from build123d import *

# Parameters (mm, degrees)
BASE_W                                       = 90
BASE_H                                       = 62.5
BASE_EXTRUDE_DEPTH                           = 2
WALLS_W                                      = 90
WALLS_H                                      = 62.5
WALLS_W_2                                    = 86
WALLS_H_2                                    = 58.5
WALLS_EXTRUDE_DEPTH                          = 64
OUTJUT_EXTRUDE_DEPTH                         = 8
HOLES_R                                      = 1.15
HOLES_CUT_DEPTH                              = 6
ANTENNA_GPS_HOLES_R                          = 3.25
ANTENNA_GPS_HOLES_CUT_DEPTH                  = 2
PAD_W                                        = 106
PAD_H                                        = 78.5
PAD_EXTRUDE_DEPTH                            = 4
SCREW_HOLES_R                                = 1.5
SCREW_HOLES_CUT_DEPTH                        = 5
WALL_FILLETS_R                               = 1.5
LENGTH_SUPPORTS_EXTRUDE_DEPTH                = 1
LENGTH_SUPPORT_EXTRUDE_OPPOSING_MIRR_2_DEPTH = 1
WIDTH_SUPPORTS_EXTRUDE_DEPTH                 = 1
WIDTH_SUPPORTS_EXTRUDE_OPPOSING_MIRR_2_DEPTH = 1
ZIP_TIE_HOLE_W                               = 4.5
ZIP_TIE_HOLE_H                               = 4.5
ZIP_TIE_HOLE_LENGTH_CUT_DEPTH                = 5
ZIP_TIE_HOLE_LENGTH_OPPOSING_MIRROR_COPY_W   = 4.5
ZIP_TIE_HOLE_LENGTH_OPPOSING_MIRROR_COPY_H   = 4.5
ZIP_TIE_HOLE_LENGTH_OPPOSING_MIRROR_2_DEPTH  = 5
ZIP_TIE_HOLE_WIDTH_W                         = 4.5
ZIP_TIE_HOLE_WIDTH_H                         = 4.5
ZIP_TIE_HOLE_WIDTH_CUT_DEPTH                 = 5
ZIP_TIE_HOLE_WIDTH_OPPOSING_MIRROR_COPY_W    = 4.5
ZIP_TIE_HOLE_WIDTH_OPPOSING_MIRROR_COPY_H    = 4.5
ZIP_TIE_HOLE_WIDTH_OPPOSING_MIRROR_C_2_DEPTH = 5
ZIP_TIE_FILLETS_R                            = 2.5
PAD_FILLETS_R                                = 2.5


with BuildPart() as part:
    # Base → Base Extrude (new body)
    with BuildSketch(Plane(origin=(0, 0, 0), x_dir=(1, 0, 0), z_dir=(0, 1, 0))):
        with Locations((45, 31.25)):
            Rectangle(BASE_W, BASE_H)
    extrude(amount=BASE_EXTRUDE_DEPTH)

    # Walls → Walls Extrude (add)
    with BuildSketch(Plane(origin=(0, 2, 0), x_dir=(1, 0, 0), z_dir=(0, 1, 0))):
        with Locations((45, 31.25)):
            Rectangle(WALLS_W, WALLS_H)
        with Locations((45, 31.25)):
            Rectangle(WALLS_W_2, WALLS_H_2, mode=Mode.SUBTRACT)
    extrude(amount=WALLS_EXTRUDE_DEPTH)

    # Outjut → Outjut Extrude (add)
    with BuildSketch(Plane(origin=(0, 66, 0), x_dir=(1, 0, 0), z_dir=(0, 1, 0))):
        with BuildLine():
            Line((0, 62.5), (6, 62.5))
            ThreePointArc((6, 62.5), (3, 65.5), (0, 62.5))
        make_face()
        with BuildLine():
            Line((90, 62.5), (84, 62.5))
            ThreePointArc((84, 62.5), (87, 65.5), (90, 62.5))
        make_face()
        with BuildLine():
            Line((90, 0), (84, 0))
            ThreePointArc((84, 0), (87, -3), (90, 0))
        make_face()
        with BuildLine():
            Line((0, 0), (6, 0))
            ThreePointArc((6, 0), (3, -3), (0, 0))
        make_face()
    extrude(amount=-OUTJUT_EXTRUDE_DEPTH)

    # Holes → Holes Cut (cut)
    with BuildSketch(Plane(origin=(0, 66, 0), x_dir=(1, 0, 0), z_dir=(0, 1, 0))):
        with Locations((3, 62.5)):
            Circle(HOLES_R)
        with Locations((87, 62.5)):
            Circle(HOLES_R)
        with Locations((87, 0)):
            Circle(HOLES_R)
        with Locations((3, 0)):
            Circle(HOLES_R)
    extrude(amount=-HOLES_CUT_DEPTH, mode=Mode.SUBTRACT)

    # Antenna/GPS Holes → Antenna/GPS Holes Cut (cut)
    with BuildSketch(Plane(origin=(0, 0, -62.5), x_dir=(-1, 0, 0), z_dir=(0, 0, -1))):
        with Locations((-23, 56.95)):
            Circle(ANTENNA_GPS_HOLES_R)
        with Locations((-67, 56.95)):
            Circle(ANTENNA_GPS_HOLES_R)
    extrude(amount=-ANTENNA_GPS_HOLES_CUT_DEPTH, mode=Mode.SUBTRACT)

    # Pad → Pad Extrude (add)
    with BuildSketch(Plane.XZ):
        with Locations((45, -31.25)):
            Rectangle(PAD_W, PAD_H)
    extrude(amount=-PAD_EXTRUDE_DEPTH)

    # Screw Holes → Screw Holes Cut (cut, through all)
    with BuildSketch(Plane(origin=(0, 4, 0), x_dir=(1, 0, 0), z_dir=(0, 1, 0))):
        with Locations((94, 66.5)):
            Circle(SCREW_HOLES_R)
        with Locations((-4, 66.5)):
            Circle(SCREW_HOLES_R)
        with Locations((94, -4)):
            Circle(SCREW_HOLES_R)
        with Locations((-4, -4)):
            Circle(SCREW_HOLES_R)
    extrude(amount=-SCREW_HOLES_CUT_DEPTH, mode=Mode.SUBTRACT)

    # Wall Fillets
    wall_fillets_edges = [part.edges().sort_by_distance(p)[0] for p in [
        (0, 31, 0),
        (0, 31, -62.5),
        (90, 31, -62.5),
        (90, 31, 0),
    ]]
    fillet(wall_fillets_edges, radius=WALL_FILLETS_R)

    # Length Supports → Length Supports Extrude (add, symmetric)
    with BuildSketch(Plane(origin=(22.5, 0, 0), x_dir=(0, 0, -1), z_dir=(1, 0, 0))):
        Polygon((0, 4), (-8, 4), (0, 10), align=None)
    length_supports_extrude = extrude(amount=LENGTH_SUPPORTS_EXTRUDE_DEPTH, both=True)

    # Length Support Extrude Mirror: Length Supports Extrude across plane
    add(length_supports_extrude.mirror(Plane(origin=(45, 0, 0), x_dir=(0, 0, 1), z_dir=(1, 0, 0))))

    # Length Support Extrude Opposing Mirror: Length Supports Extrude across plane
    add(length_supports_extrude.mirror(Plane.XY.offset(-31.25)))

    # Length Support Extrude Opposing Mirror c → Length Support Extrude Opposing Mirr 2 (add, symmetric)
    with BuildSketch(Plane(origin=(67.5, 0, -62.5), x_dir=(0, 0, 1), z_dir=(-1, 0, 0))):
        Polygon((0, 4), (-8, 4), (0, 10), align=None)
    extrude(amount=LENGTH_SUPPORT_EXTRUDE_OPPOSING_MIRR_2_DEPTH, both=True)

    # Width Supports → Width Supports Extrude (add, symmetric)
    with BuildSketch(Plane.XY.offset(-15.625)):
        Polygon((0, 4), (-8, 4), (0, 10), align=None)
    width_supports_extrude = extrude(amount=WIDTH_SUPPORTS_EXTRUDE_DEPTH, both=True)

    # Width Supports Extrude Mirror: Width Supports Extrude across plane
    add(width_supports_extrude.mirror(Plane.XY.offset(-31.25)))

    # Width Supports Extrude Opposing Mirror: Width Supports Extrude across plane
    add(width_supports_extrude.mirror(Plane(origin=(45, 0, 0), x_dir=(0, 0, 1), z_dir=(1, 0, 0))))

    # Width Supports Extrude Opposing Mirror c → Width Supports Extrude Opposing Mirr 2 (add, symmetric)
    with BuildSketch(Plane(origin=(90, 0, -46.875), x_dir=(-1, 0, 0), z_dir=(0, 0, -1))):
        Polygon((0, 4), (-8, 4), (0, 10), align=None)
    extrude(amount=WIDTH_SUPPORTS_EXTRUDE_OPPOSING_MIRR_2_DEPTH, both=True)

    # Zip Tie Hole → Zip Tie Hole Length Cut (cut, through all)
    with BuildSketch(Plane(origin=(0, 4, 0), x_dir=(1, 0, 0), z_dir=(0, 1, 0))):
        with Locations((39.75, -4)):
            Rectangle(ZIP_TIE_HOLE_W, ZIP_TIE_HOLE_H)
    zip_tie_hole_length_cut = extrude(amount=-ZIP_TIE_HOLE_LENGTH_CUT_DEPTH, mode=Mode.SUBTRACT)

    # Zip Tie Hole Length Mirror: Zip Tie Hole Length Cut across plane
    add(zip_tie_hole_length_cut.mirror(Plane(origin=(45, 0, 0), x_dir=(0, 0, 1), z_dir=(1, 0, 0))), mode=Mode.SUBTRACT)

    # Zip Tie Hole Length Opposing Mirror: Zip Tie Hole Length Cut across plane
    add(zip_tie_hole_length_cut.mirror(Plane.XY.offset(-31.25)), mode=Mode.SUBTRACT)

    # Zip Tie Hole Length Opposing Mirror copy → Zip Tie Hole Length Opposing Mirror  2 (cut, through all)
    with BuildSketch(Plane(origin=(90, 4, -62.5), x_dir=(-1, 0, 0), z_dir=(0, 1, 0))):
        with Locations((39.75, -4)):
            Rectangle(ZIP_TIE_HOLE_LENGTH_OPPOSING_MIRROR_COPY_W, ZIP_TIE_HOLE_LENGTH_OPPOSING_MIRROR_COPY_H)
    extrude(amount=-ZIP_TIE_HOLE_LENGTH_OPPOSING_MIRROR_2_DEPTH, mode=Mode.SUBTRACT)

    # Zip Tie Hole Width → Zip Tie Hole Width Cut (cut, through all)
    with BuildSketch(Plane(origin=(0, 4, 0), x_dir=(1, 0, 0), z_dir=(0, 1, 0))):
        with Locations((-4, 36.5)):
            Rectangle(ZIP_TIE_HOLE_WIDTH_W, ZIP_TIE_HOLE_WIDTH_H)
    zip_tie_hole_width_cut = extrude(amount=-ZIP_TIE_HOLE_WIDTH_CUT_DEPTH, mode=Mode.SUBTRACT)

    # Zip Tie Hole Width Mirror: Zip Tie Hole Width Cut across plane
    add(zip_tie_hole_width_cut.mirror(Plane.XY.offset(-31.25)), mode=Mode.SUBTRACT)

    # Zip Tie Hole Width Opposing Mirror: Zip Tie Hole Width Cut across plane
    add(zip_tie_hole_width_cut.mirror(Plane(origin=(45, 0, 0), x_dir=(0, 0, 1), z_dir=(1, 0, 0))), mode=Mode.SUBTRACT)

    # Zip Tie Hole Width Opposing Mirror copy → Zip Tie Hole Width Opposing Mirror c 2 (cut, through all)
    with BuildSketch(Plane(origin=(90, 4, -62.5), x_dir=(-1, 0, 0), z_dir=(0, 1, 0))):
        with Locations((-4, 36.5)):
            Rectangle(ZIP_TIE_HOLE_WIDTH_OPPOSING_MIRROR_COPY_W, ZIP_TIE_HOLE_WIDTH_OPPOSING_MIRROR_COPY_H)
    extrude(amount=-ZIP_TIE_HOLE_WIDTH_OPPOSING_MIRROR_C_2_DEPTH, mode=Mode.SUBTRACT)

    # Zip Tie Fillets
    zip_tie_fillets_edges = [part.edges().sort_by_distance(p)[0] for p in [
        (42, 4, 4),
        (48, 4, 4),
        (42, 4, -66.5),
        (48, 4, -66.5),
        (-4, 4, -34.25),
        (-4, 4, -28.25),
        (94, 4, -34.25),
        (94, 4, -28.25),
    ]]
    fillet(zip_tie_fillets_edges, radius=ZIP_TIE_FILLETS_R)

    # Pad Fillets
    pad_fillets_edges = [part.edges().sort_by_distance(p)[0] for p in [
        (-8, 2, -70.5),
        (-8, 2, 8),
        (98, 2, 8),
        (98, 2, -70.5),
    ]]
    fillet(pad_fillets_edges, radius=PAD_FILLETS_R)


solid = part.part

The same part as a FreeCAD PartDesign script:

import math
import FreeCAD as App
import Part
import Sketcher
from FreeCAD import Vector


def edges_at(feature, points):
    """Names of the edges that pass closest to the given points."""
    edges = feature.Shape.Edges
    near = lambda p: min(range(len(edges)), key=lambda i: edges[i].distToShape(Part.Vertex(*p))[0])
    return sorted({f"Edge{near(p) + 1}" for p in points})

doc = App.newDocument("Part")
params = doc.addObject("Spreadsheet::Sheet", "Params")
for row, (alias, value) in enumerate([
    ("sketch1_width", "90 mm"),
    ("sketch1_height", "62.5 mm"),
    ("pad1_length", "2 mm"),
    ("sketch2_width", "90 mm"),
    ("sketch2_width2", "86 mm"),
    ("sketch2_height", "62.5 mm"),
    ("sketch2_height2", "58.5 mm"),
    ("pad2_length", "64 mm"),
    ("sketch3_radius", "3 mm"),
    ("pad3_length", "8 mm"),
    ("sketch4_diameter", "2.3 mm"),
    ("pocket1_length", "6 mm"),
    ("sketch5_diameter", "6.5 mm"),
    ("pocket2_length", "2 mm"),
    ("sketch6_width", "106 mm"),
    ("sketch6_height", "78.5 mm"),
    ("pad4_length", "4 mm"),
    ("sketch7_diameter", "3 mm"),
    ("fillet_radius", "1.5 mm"),
    ("sketch8_width", "6 mm"),
    ("sketch8_height", "8 mm"),
    ("pad5_length", "2 mm"),
    ("sketch9_width", "6 mm"),
    ("sketch9_height", "8 mm"),
    ("pad6_length", "2 mm"),
    ("sketch10_width", "8 mm"),
    ("sketch10_height", "6 mm"),
    ("pad7_length", "2 mm"),
    ("sketch11_width", "8 mm"),
    ("sketch11_height", "6 mm"),
    ("pad8_length", "2 mm"),
    ("sketch12_width", "4.5 mm"),
    ("sketch13_width", "4.5 mm"),
    ("sketch14_width", "4.5 mm"),
    ("sketch15_width", "4.5 mm"),
    ("fillet2_radius", "2.5 mm"),
    ("fillet3_radius", "2.5 mm"),
], start=1):
    params.set(f"A{row}", alias)
    params.set(f"B{row}", "=" + value)
    params.setAlias(f"B{row}", alias)

body = doc.addObject("PartDesign::Body", "Body")

sketch1 = body.newObject("Sketcher::SketchObject", "Sketch")
sketch1.AttachmentSupport = (doc.getObject("XZ_Plane"), [""])
sketch1.MapMode = "FlatFace"
sketch1.addGeometry([
    Part.LineSegment(Vector(0, -62.5, 0), Vector(0, 0, 0)),
    Part.LineSegment(Vector(0, 0, 0), Vector(90, 0, 0)),
    Part.LineSegment(Vector(90, 0, 0), Vector(90, -62.5, 0)),
    Part.LineSegment(Vector(90, -62.5, 0), Vector(0, -62.5, 0)),
], False)
sketch1.addConstraint([
    Sketcher.Constraint("Coincident", 0, 2, 1, 1),
    Sketcher.Constraint("Coincident", 1, 2, 2, 1),
    Sketcher.Constraint("Coincident", 2, 2, 3, 1),
    Sketcher.Constraint("Coincident", 3, 2, 0, 1),
    Sketcher.Constraint("Vertical", 0),
    Sketcher.Constraint("Horizontal", 1),
    Sketcher.Constraint("Vertical", 2),
    Sketcher.Constraint("Horizontal", 3),
    Sketcher.Constraint("Coincident", 0, 2, -1, 1),
    Sketcher.Constraint("DistanceX", 1, 1, 1, 2, 90.0),
    Sketcher.Constraint("DistanceY", 0, 1, 0, 2, 62.5),
])
sketch1.setExpression("Constraints[9]", "Params.sketch1_width")
sketch1.setExpression("Constraints[10]", "Params.sketch1_height")
pad1 = body.newObject("PartDesign::Pad", "Pad")
pad1.Profile = sketch1
pad1.setExpression("Length", "Params.pad1_length")
pad1.Reversed = True

sketch2 = body.newObject("Sketcher::SketchObject", "Sketch001")
sketch2.AttachmentSupport = (doc.getObject("XZ_Plane"), [""])
sketch2.MapMode = "FlatFace"
sketch2.AttachmentOffset = App.Placement(Vector(0, 0, -2), App.Rotation())
sketch2.addGeometry([
    Part.LineSegment(Vector(0, -62.5, 0), Vector(0, 0, 0)),
    Part.LineSegment(Vector(0, 0, 0), Vector(90, 0, 0)),
    Part.LineSegment(Vector(90, 0, 0), Vector(90, -62.5, 0)),
    Part.LineSegment(Vector(90, -62.5, 0), Vector(0, -62.5, 0)),
    Part.LineSegment(Vector(88, -2, 0), Vector(2, -2, 0)),
    Part.LineSegment(Vector(2, -2, 0), Vector(2, -60.5, 0)),
    Part.LineSegment(Vector(2, -60.5, 0), Vector(88, -60.5, 0)),
    Part.LineSegment(Vector(88, -60.5, 0), Vector(88, -2, 0)),
], False)
sketch2.addConstraint([
    Sketcher.Constraint("Coincident", 0, 2, 1, 1),
    Sketcher.Constraint("Coincident", 1, 2, 2, 1),
    Sketcher.Constraint("Coincident", 2, 2, 3, 1),
    Sketcher.Constraint("Coincident", 3, 2, 0, 1),
    Sketcher.Constraint("Coincident", 4, 2, 5, 1),
    Sketcher.Constraint("Coincident", 5, 2, 6, 1),
    Sketcher.Constraint("Coincident", 6, 2, 7, 1),
    Sketcher.Constraint("Coincident", 7, 2, 4, 1),
    Sketcher.Constraint("Vertical", 0),
    Sketcher.Constraint("Horizontal", 1),
    Sketcher.Constraint("Vertical", 2),
    Sketcher.Constraint("Horizontal", 3),
    Sketcher.Constraint("Horizontal", 4),
    Sketcher.Constraint("Vertical", 5),
    Sketcher.Constraint("Horizontal", 6),
    Sketcher.Constraint("Vertical", 7),
    Sketcher.Constraint("Coincident", 0, 2, -1, 1),
    Sketcher.Constraint("DistanceX", 1, 1, 1, 2, 90.0),
    Sketcher.Constraint("DistanceX", 4, 2, 4, 1, 86.0),
    Sketcher.Constraint("DistanceY", 0, 1, 0, 2, 62.5),
    Sketcher.Constraint("DistanceY", 5, 2, 5, 1, 58.5),
    Sketcher.Constraint("DistanceX", -1, 1, 4, 2, 2.0),
    Sketcher.Constraint("DistanceY", 4, 2, -1, 1, 2.0),
])
sketch2.setExpression("Constraints[17]", "Params.sketch2_width")
sketch2.setExpression("Constraints[18]", "Params.sketch2_width2")
sketch2.setExpression("Constraints[19]", "Params.sketch2_height")
sketch2.setExpression("Constraints[20]", "Params.sketch2_height2")
pad2 = body.newObject("PartDesign::Pad", "Pad001")
pad2.Profile = sketch2
pad2.setExpression("Length", "Params.pad2_length")
pad2.Reversed = True

sketch3 = body.newObject("Sketcher::SketchObject", "Sketch002")
sketch3.AttachmentSupport = (doc.getObject("XZ_Plane"), [""])
sketch3.MapMode = "FlatFace"
sketch3.AttachmentOffset = App.Placement(Vector(0, 0, -66), App.Rotation())
sketch3.addGeometry([
    Part.LineSegment(Vector(0, -62.5, 0), Vector(6, -62.5, 0)),
    Part.ArcOfCircle(Part.Circle(Vector(3, -62.5, 0), Vector(0, 0, 1), 3), math.radians(180), math.radians(360)),
    Part.LineSegment(Vector(84, -62.5, 0), Vector(90, -62.5, 0)),
    Part.ArcOfCircle(Part.Circle(Vector(87, -62.5, 0), Vector(0, 0, 1), 3), math.radians(180), math.radians(360)),
    Part.LineSegment(Vector(90, 0, 0), Vector(84, 0, 0)),
    Part.ArcOfCircle(Part.Circle(Vector(87, 0, 0), Vector(0, 0, 1), 3), math.radians(0), math.radians(180)),
    Part.LineSegment(Vector(6, 0, 0), Vector(0, 0, 0)),
    Part.ArcOfCircle(Part.Circle(Vector(3, 0, 0), Vector(0, 0, 1), 3), math.radians(0), math.radians(180)),
], False)
sketch3.addConstraint([
    Sketcher.Constraint("Coincident", 0, 1, 1, 1),
    Sketcher.Constraint("Coincident", 1, 2, 0, 2),
    Sketcher.Constraint("Coincident", 2, 1, 3, 1),
    Sketcher.Constraint("Coincident", 3, 2, 2, 2),
    Sketcher.Constraint("Coincident", 4, 1, 5, 1),
    Sketcher.Constraint("Coincident", 5, 2, 4, 2),
    Sketcher.Constraint("Coincident", 6, 1, 7, 1),
    Sketcher.Constraint("Coincident", 7, 2, 6, 2),
    Sketcher.Constraint("Horizontal", 0),
    Sketcher.Constraint("Horizontal", 2),
    Sketcher.Constraint("Horizontal", 4),
    Sketcher.Constraint("Horizontal", 6),
    Sketcher.Constraint("Coincident", 7, 2, -1, 1),
    Sketcher.Constraint("Equal", 1, 3),
    Sketcher.Constraint("Equal", 3, 5),
    Sketcher.Constraint("Equal", 5, 7),
    Sketcher.Constraint("PointOnObject", 5, 3, -1),
    Sketcher.Constraint("PointOnObject", 7, 3, -1),
    Sketcher.Constraint("PointOnObject", 0, 1, -2),
    Sketcher.Constraint("PointOnObject", 4, 1, -1),
    Sketcher.Constraint("Horizontal", 1, 3, 3, 3),
    Sketcher.Constraint("Horizontal", 3, 3, 0, 1),
    Sketcher.Constraint("Horizontal", 1, 2, 2, 1),
    Sketcher.Constraint("Vertical", 3, 3, 5, 3),
    Sketcher.Constraint("Radius", 1, 3.0),
    Sketcher.Constraint("DistanceX", -1, 1, 3, 3, 87.0),
    Sketcher.Constraint("DistanceY", 1, 3, -1, 1, 62.5),
])
sketch3.setExpression("Constraints[24]", "Params.sketch3_radius")
pad3 = body.newObject("PartDesign::Pad", "Pad002")
pad3.Profile = sketch3
pad3.setExpression("Length", "Params.pad3_length")

sketch4 = body.newObject("Sketcher::SketchObject", "Sketch003")
sketch4.AttachmentSupport = (doc.getObject("XZ_Plane"), [""])
sketch4.MapMode = "FlatFace"
sketch4.AttachmentOffset = App.Placement(Vector(0, 0, -66), App.Rotation())
sketch4.addGeometry([
    Part.Circle(Vector(3, -62.5, 0), Vector(0, 0, 1), 1.15),
    Part.Circle(Vector(87, -62.5, 0), Vector(0, 0, 1), 1.15),
    Part.Circle(Vector(87, 0, 0), Vector(0, 0, 1), 1.15),
    Part.Circle(Vector(3, 0, 0), Vector(0, 0, 1), 1.15),
], False)
sketch4.addConstraint([
    Sketcher.Constraint("Equal", 0, 1),
    Sketcher.Constraint("Equal", 1, 2),
    Sketcher.Constraint("Equal", 2, 3),
    Sketcher.Constraint("PointOnObject", 2, 3, -1),
    Sketcher.Constraint("PointOnObject", 3, 3, -1),
    Sketcher.Constraint("Horizontal", 0, 3, 1, 3),
    Sketcher.Constraint("Vertical", 1, 3, 2, 3),
    Sketcher.Constraint("Vertical", 0, 3, 3, 3),
    Sketcher.Constraint("Diameter", 0, 2.3),
    Sketcher.Constraint("DistanceX", -1, 1, 0, 3, 3.0),
    Sketcher.Constraint("DistanceX", -1, 1, 1, 3, 87.0),
    Sketcher.Constraint("DistanceY", 0, 3, -1, 1, 62.5),
])
sketch4.setExpression("Constraints[8]", "Params.sketch4_diameter")
pocket1 = body.newObject("PartDesign::Pocket", "Pocket")
pocket1.Profile = sketch4
pocket1.setExpression("Length", "Params.pocket1_length")
pocket1.Reversed = True

sketch5 = body.newObject("Sketcher::SketchObject", "Sketch004")
sketch5.AttachmentSupport = (doc.getObject("XY_Plane"), [""])
sketch5.MapMode = "FlatFace"
sketch5.AttachmentOffset = App.Placement(Vector(0, 0, -62.5), App.Rotation())
sketch5.addGeometry([
    Part.Circle(Vector(23, 56.95, 0), Vector(0, 0, 1), 3.25),
    Part.Circle(Vector(67, 56.95, 0), Vector(0, 0, 1), 3.25),
], False)
sketch5.addConstraint([
    Sketcher.Constraint("Equal", 0, 1),
    Sketcher.Constraint("Horizontal", 0, 3, 1, 3),
    Sketcher.Constraint("Diameter", 0, 6.5),
    Sketcher.Constraint("DistanceX", -1, 1, 0, 3, 23.0),
    Sketcher.Constraint("DistanceX", -1, 1, 1, 3, 67.0),
    Sketcher.Constraint("DistanceY", -1, 1, 0, 3, 56.95),
])
sketch5.setExpression("Constraints[2]", "Params.sketch5_diameter")
pocket2 = body.newObject("PartDesign::Pocket", "Pocket001")
pocket2.Profile = sketch5
pocket2.setExpression("Length", "Params.pocket2_length")
pocket2.Reversed = True

sketch6 = body.newObject("Sketcher::SketchObject", "Sketch005")
sketch6.AttachmentSupport = (doc.getObject("XZ_Plane"), [""])
sketch6.MapMode = "FlatFace"
sketch6.addGeometry([
    Part.LineSegment(Vector(-8, 8, 0), Vector(-8, -70.5, 0)),
    Part.LineSegment(Vector(-8, -70.5, 0), Vector(98, -70.5, 0)),
    Part.LineSegment(Vector(98, -70.5, 0), Vector(98, 8, 0)),
    Part.LineSegment(Vector(98, 8, 0), Vector(-8, 8, 0)),
], False)
sketch6.addConstraint([
    Sketcher.Constraint("Coincident", 0, 2, 1, 1),
    Sketcher.Constraint("Coincident", 1, 2, 2, 1),
    Sketcher.Constraint("Coincident", 2, 2, 3, 1),
    Sketcher.Constraint("Coincident", 3, 2, 0, 1),
    Sketcher.Constraint("Vertical", 0),
    Sketcher.Constraint("Horizontal", 1),
    Sketcher.Constraint("Vertical", 2),
    Sketcher.Constraint("Horizontal", 3),
    Sketcher.Constraint("DistanceX", 1, 1, 1, 2, 106.0),
    Sketcher.Constraint("DistanceY", 0, 2, 0, 1, 78.5),
    Sketcher.Constraint("DistanceX", 0, 2, -1, 1, 8.0),
    Sketcher.Constraint("DistanceY", -1, 1, 2, 2, 8.0),
])
sketch6.setExpression("Constraints[8]", "Params.sketch6_width")
sketch6.setExpression("Constraints[9]", "Params.sketch6_height")
pad4 = body.newObject("PartDesign::Pad", "Pad003")
pad4.Profile = sketch6
pad4.setExpression("Length", "Params.pad4_length")
pad4.Reversed = True

sketch7 = body.newObject("Sketcher::SketchObject", "Sketch006")
sketch7.AttachmentSupport = (doc.getObject("XZ_Plane"), [""])
sketch7.MapMode = "FlatFace"
sketch7.AttachmentOffset = App.Placement(Vector(0, 0, -4), App.Rotation())
sketch7.addGeometry([
    Part.Circle(Vector(94, -66.5, 0), Vector(0, 0, 1), 1.5),
    Part.Circle(Vector(-4, -66.5, 0), Vector(0, 0, 1), 1.5),
    Part.Circle(Vector(94, 4, 0), Vector(0, 0, 1), 1.5),
    Part.Circle(Vector(-4, 4, 0), Vector(0, 0, 1), 1.5),
], False)
sketch7.addConstraint([
    Sketcher.Constraint("Equal", 0, 1),
    Sketcher.Constraint("Equal", 1, 2),
    Sketcher.Constraint("Equal", 2, 3),
    Sketcher.Constraint("Horizontal", 0, 3, 1, 3),
    Sketcher.Constraint("Horizontal", 2, 3, 3, 3),
    Sketcher.Constraint("Vertical", 0, 3, 2, 3),
    Sketcher.Constraint("Vertical", 1, 3, 3, 3),
    Sketcher.Constraint("Diameter", 0, 3.0),
    Sketcher.Constraint("DistanceX", -1, 1, 0, 3, 94.0),
    Sketcher.Constraint("DistanceX", 1, 3, -1, 1, 4.0),
    Sketcher.Constraint("DistanceY", -1, 1, 2, 3, 4.0),
    Sketcher.Constraint("DistanceY", 0, 3, -1, 1, 66.5),
])
sketch7.setExpression("Constraints[7]", "Params.sketch7_diameter")
pocket3 = body.newObject("PartDesign::Pocket", "Pocket002")
pocket3.Profile = sketch7
pocket3.Type = "ThroughAll"
pocket3.Reversed = True
doc.recompute()

fillet = body.newObject("PartDesign::Fillet", "Fillet")
fillet.Base = (pocket3, edges_at(pocket3, [
    (0, 31, 0),
    (0, 31, -62.5),
    (90, 31, -62.5),
    (90, 31, 0),
]))
fillet.setExpression("Radius", "Params.fillet_radius")

sketch8 = body.newObject("Sketcher::SketchObject", "Sketch007")
sketch8.AttachmentSupport = (doc.getObject("YZ_Plane"), [""])
sketch8.MapMode = "FlatFace"
sketch8.AttachmentOffset = App.Placement(Vector(0, 0, 22.5), App.Rotation())
sketch8.addGeometry([
    Part.LineSegment(Vector(4, 8, 0), Vector(4, 0, 0)),
    Part.LineSegment(Vector(4, 0, 0), Vector(10, 0, 0)),
    Part.LineSegment(Vector(10, 0, 0), Vector(4, 8, 0)),
], False)
sketch8.addConstraint([
    Sketcher.Constraint("Coincident", 0, 2, 1, 1),
    Sketcher.Constraint("Coincident", 1, 2, 2, 1),
    Sketcher.Constraint("Coincident", 2, 2, 0, 1),
    Sketcher.Constraint("Vertical", 0),
    Sketcher.Constraint("Horizontal", 1),
    Sketcher.Constraint("PointOnObject", 0, 2, -1),
    Sketcher.Constraint("DistanceX", 1, 1, 1, 2, 6.0),
    Sketcher.Constraint("DistanceY", 0, 2, 0, 1, 8.0),
    Sketcher.Constraint("DistanceX", -1, 1, 0, 2, 4.0),
])
sketch8.setExpression("Constraints[6]", "Params.sketch8_width")
sketch8.setExpression("Constraints[7]", "Params.sketch8_height")
pad5 = body.newObject("PartDesign::Pad", "Pad004")
pad5.Profile = sketch8
pad5.setExpression("Length", "Params.pad5_length")
pad5.Midplane = True
doc.recompute()

datumplane = body.newObject("PartDesign::Plane", "DatumPlane")
datumplane.AttachmentSupport = (doc.getObject("YZ_Plane"), [""])
datumplane.MapMode = "FlatFace"
datumplane.AttachmentOffset = App.Placement(Vector(0, 0, 45), App.Rotation())
mirrored = body.newObject("PartDesign::Mirrored", "Mirrored")
mirrored.Originals = [pad5]
mirrored.MirrorPlane = (datumplane, [""])
body.Tip = mirrored
doc.recompute()

datumplane2 = body.newObject("PartDesign::Plane", "DatumPlane001")
datumplane2.AttachmentSupport = (doc.getObject("XY_Plane"), [""])
datumplane2.MapMode = "FlatFace"
datumplane2.AttachmentOffset = App.Placement(Vector(0, 0, -31.25), App.Rotation())
mirrored2 = body.newObject("PartDesign::Mirrored", "Mirrored001")
mirrored2.Originals = [pad5]
mirrored2.MirrorPlane = (datumplane2, [""])
body.Tip = mirrored2

sketch9 = body.newObject("Sketcher::SketchObject", "Sketch008")
sketch9.AttachmentSupport = (doc.getObject("YZ_Plane"), [""])
sketch9.MapMode = "FlatFace"
sketch9.AttachmentOffset = App.Placement(Vector(0, 0, 67.5), App.Rotation())
sketch9.addGeometry([
    Part.LineSegment(Vector(4, -70.5, 0), Vector(4, -62.5, 0)),
    Part.LineSegment(Vector(4, -62.5, 0), Vector(10, -62.5, 0)),
    Part.LineSegment(Vector(10, -62.5, 0), Vector(4, -70.5, 0)),
], False)
sketch9.addConstraint([
    Sketcher.Constraint("Coincident", 0, 2, 1, 1),
    Sketcher.Constraint("Coincident", 1, 2, 2, 1),
    Sketcher.Constraint("Coincident", 2, 2, 0, 1),
    Sketcher.Constraint("Vertical", 0),
    Sketcher.Constraint("Horizontal", 1),
    Sketcher.Constraint("DistanceX", 1, 1, 1, 2, 6.0),
    Sketcher.Constraint("DistanceY", 0, 1, 0, 2, 8.0),
    Sketcher.Constraint("DistanceX", -1, 1, 0, 2, 4.0),
    Sketcher.Constraint("DistanceY", 0, 2, -1, 1, 62.5),
])
sketch9.setExpression("Constraints[5]", "Params.sketch9_width")
sketch9.setExpression("Constraints[6]", "Params.sketch9_height")
pad6 = body.newObject("PartDesign::Pad", "Pad005")
pad6.Profile = sketch9
pad6.setExpression("Length", "Params.pad6_length")
pad6.Midplane = True

sketch10 = body.newObject("Sketcher::SketchObject", "Sketch009")
sketch10.AttachmentSupport = (doc.getObject("XY_Plane"), [""])
sketch10.MapMode = "FlatFace"
sketch10.AttachmentOffset = App.Placement(Vector(0, 0, -15.625), App.Rotation())
sketch10.addGeometry([
    Part.LineSegment(Vector(-8, 4, 0), Vector(0, 4, 0)),
    Part.LineSegment(Vector(0, 4, 0), Vector(0, 10, 0)),
    Part.LineSegment(Vector(0, 10, 0), Vector(-8, 4, 0)),
], False)
sketch10.addConstraint([
    Sketcher.Constraint("Coincident", 0, 2, 1, 1),
    Sketcher.Constraint("Coincident", 1, 2, 2, 1),
    Sketcher.Constraint("Coincident", 2, 2, 0, 1),
    Sketcher.Constraint("Horizontal", 0),
    Sketcher.Constraint("Vertical", 1),
    Sketcher.Constraint("PointOnObject", 0, 2, -2),
    Sketcher.Constraint("DistanceX", 0, 1, 0, 2, 8.0),
    Sketcher.Constraint("DistanceY", 1, 1, 1, 2, 6.0),
    Sketcher.Constraint("DistanceY", -1, 1, 0, 2, 4.0),
])
sketch10.setExpression("Constraints[6]", "Params.sketch10_width")
sketch10.setExpression("Constraints[7]", "Params.sketch10_height")
pad7 = body.newObject("PartDesign::Pad", "Pad006")
pad7.Profile = sketch10
pad7.setExpression("Length", "Params.pad7_length")
pad7.Midplane = True
doc.recompute()

datumplane3 = body.newObject("PartDesign::Plane", "DatumPlane002")
datumplane3.AttachmentSupport = (doc.getObject("XY_Plane"), [""])
datumplane3.MapMode = "FlatFace"
datumplane3.AttachmentOffset = App.Placement(Vector(0, 0, -31.25), App.Rotation())
mirrored3 = body.newObject("PartDesign::Mirrored", "Mirrored002")
mirrored3.Originals = [pad7]
mirrored3.MirrorPlane = (datumplane3, [""])
body.Tip = mirrored3
doc.recompute()

datumplane4 = body.newObject("PartDesign::Plane", "DatumPlane003")
datumplane4.AttachmentSupport = (doc.getObject("YZ_Plane"), [""])
datumplane4.MapMode = "FlatFace"
datumplane4.AttachmentOffset = App.Placement(Vector(0, 0, 45), App.Rotation())
mirrored4 = body.newObject("PartDesign::Mirrored", "Mirrored003")
mirrored4.Originals = [pad7]
mirrored4.MirrorPlane = (datumplane4, [""])
body.Tip = mirrored4

sketch11 = body.newObject("Sketcher::SketchObject", "Sketch010")
sketch11.AttachmentSupport = (doc.getObject("XY_Plane"), [""])
sketch11.MapMode = "FlatFace"
sketch11.AttachmentOffset = App.Placement(Vector(0, 0, -46.875), App.Rotation())
sketch11.addGeometry([
    Part.LineSegment(Vector(98, 4, 0), Vector(90, 4, 0)),
    Part.LineSegment(Vector(90, 4, 0), Vector(90, 10, 0)),
    Part.LineSegment(Vector(90, 10, 0), Vector(98, 4, 0)),
], False)
sketch11.addConstraint([
    Sketcher.Constraint("Coincident", 0, 2, 1, 1),
    Sketcher.Constraint("Coincident", 1, 2, 2, 1),
    Sketcher.Constraint("Coincident", 2, 2, 0, 1),
    Sketcher.Constraint("Horizontal", 0),
    Sketcher.Constraint("Vertical", 1),
    Sketcher.Constraint("DistanceX", 0, 2, 0, 1, 8.0),
    Sketcher.Constraint("DistanceY", 1, 1, 1, 2, 6.0),
    Sketcher.Constraint("DistanceX", -1, 1, 0, 2, 90.0),
    Sketcher.Constraint("DistanceY", -1, 1, 0, 2, 4.0),
])
sketch11.setExpression("Constraints[5]", "Params.sketch11_width")
sketch11.setExpression("Constraints[6]", "Params.sketch11_height")
pad8 = body.newObject("PartDesign::Pad", "Pad007")
pad8.Profile = sketch11
pad8.setExpression("Length", "Params.pad8_length")
pad8.Midplane = True

sketch12 = body.newObject("Sketcher::SketchObject", "Sketch011")
sketch12.AttachmentSupport = (doc.getObject("XZ_Plane"), [""])
sketch12.MapMode = "FlatFace"
sketch12.AttachmentOffset = App.Placement(Vector(0, 0, -4), App.Rotation())
sketch12.addGeometry([
    Part.LineSegment(Vector(37.5, 1.75, 0), Vector(37.5, 6.25, 0)),
    Part.LineSegment(Vector(37.5, 6.25, 0), Vector(42, 6.25, 0)),
    Part.LineSegment(Vector(42, 6.25, 0), Vector(42, 1.75, 0)),
    Part.LineSegment(Vector(42, 1.75, 0), Vector(37.5, 1.75, 0)),
], False)
sketch12.addConstraint([
    Sketcher.Constraint("Coincident", 0, 2, 1, 1),
    Sketcher.Constraint("Coincident", 1, 2, 2, 1),
    Sketcher.Constraint("Coincident", 2, 2, 3, 1),
    Sketcher.Constraint("Coincident", 3, 2, 0, 1),
    Sketcher.Constraint("Vertical", 0),
    Sketcher.Constraint("Horizontal", 1),
    Sketcher.Constraint("Vertical", 2),
    Sketcher.Constraint("Horizontal", 3),
    Sketcher.Constraint("Equal", 3, 0),
    Sketcher.Constraint("DistanceX", 1, 1, 1, 2, 4.5),
    Sketcher.Constraint("DistanceX", -1, 1, 1, 2, 42.0),
    Sketcher.Constraint("DistanceY", -1, 1, 0, 2, 6.25),
])
sketch12.setExpression("Constraints[9]", "Params.sketch12_width")
pocket4 = body.newObject("PartDesign::Pocket", "Pocket003")
pocket4.Profile = sketch12
pocket4.Type = "ThroughAll"
pocket4.Reversed = True
doc.recompute()

datumplane5 = body.newObject("PartDesign::Plane", "DatumPlane004")
datumplane5.AttachmentSupport = (doc.getObject("YZ_Plane"), [""])
datumplane5.MapMode = "FlatFace"
datumplane5.AttachmentOffset = App.Placement(Vector(0, 0, 45), App.Rotation())
mirrored5 = body.newObject("PartDesign::Mirrored", "Mirrored004")
mirrored5.Originals = [pocket4]
mirrored5.MirrorPlane = (datumplane5, [""])
body.Tip = mirrored5
doc.recompute()

datumplane6 = body.newObject("PartDesign::Plane", "DatumPlane005")
datumplane6.AttachmentSupport = (doc.getObject("XY_Plane"), [""])
datumplane6.MapMode = "FlatFace"
datumplane6.AttachmentOffset = App.Placement(Vector(0, 0, -31.25), App.Rotation())
mirrored6 = body.newObject("PartDesign::Mirrored", "Mirrored005")
mirrored6.Originals = [pocket4]
mirrored6.MirrorPlane = (datumplane6, [""])
body.Tip = mirrored6

sketch13 = body.newObject("Sketcher::SketchObject", "Sketch012")
sketch13.AttachmentSupport = (doc.getObject("XZ_Plane"), [""])
sketch13.MapMode = "FlatFace"
sketch13.AttachmentOffset = App.Placement(Vector(0, 0, -4), App.Rotation())
sketch13.addGeometry([
    Part.LineSegment(Vector(52.5, -64.25, 0), Vector(52.5, -68.75, 0)),
    Part.LineSegment(Vector(52.5, -68.75, 0), Vector(48, -68.75, 0)),
    Part.LineSegment(Vector(48, -68.75, 0), Vector(48, -64.25, 0)),
    Part.LineSegment(Vector(48, -64.25, 0), Vector(52.5, -64.25, 0)),
], False)
sketch13.addConstraint([
    Sketcher.Constraint("Coincident", 0, 2, 1, 1),
    Sketcher.Constraint("Coincident", 1, 2, 2, 1),
    Sketcher.Constraint("Coincident", 2, 2, 3, 1),
    Sketcher.Constraint("Coincident", 3, 2, 0, 1),
    Sketcher.Constraint("Vertical", 0),
    Sketcher.Constraint("Horizontal", 1),
    Sketcher.Constraint("Vertical", 2),
    Sketcher.Constraint("Horizontal", 3),
    Sketcher.Constraint("Equal", 3, 0),
    Sketcher.Constraint("DistanceX", 1, 2, 1, 1, 4.5),
    Sketcher.Constraint("DistanceX", -1, 1, 1, 2, 48.0),
    Sketcher.Constraint("DistanceY", 0, 2, -1, 1, 68.75),
])
sketch13.setExpression("Constraints[9]", "Params.sketch13_width")
pocket5 = body.newObject("PartDesign::Pocket", "Pocket004")
pocket5.Profile = sketch13
pocket5.Type = "ThroughAll"
pocket5.Reversed = True

sketch14 = body.newObject("Sketcher::SketchObject", "Sketch013")
sketch14.AttachmentSupport = (doc.getObject("XZ_Plane"), [""])
sketch14.MapMode = "FlatFace"
sketch14.AttachmentOffset = App.Placement(Vector(0, 0, -4), App.Rotation())
sketch14.addGeometry([
    Part.LineSegment(Vector(-6.25, -38.75, 0), Vector(-6.25, -34.25, 0)),
    Part.LineSegment(Vector(-6.25, -34.25, 0), Vector(-1.75, -34.25, 0)),
    Part.LineSegment(Vector(-1.75, -34.25, 0), Vector(-1.75, -38.75, 0)),
    Part.LineSegment(Vector(-1.75, -38.75, 0), Vector(-6.25, -38.75, 0)),
], False)
sketch14.addConstraint([
    Sketcher.Constraint("Coincident", 0, 2, 1, 1),
    Sketcher.Constraint("Coincident", 1, 2, 2, 1),
    Sketcher.Constraint("Coincident", 2, 2, 3, 1),
    Sketcher.Constraint("Coincident", 3, 2, 0, 1),
    Sketcher.Constraint("Vertical", 0),
    Sketcher.Constraint("Horizontal", 1),
    Sketcher.Constraint("Vertical", 2),
    Sketcher.Constraint("Horizontal", 3),
    Sketcher.Constraint("Equal", 3, 0),
    Sketcher.Constraint("DistanceX", 1, 1, 1, 2, 4.5),
    Sketcher.Constraint("DistanceX", 0, 2, -1, 1, 6.25),
    Sketcher.Constraint("DistanceY", 0, 2, -1, 1, 34.25),
])
sketch14.setExpression("Constraints[9]", "Params.sketch14_width")
pocket6 = body.newObject("PartDesign::Pocket", "Pocket005")
pocket6.Profile = sketch14
pocket6.Type = "ThroughAll"
pocket6.Reversed = True
doc.recompute()

datumplane7 = body.newObject("PartDesign::Plane", "DatumPlane006")
datumplane7.AttachmentSupport = (doc.getObject("XY_Plane"), [""])
datumplane7.MapMode = "FlatFace"
datumplane7.AttachmentOffset = App.Placement(Vector(0, 0, -31.25), App.Rotation())
mirrored7 = body.newObject("PartDesign::Mirrored", "Mirrored006")
mirrored7.Originals = [pocket6]
mirrored7.MirrorPlane = (datumplane7, [""])
body.Tip = mirrored7
doc.recompute()

datumplane8 = body.newObject("PartDesign::Plane", "DatumPlane007")
datumplane8.AttachmentSupport = (doc.getObject("YZ_Plane"), [""])
datumplane8.MapMode = "FlatFace"
datumplane8.AttachmentOffset = App.Placement(Vector(0, 0, 45), App.Rotation())
mirrored8 = body.newObject("PartDesign::Mirrored", "Mirrored007")
mirrored8.Originals = [pocket6]
mirrored8.MirrorPlane = (datumplane8, [""])
body.Tip = mirrored8

sketch15 = body.newObject("Sketcher::SketchObject", "Sketch014")
sketch15.AttachmentSupport = (doc.getObject("XZ_Plane"), [""])
sketch15.MapMode = "FlatFace"
sketch15.AttachmentOffset = App.Placement(Vector(0, 0, -4), App.Rotation())
sketch15.addGeometry([
    Part.LineSegment(Vector(96.25, -23.75, 0), Vector(96.25, -28.25, 0)),
    Part.LineSegment(Vector(96.25, -28.25, 0), Vector(91.75, -28.25, 0)),
    Part.LineSegment(Vector(91.75, -28.25, 0), Vector(91.75, -23.75, 0)),
    Part.LineSegment(Vector(91.75, -23.75, 0), Vector(96.25, -23.75, 0)),
], False)
sketch15.addConstraint([
    Sketcher.Constraint("Coincident", 0, 2, 1, 1),
    Sketcher.Constraint("Coincident", 1, 2, 2, 1),
    Sketcher.Constraint("Coincident", 2, 2, 3, 1),
    Sketcher.Constraint("Coincident", 3, 2, 0, 1),
    Sketcher.Constraint("Vertical", 0),
    Sketcher.Constraint("Horizontal", 1),
    Sketcher.Constraint("Vertical", 2),
    Sketcher.Constraint("Horizontal", 3),
    Sketcher.Constraint("Equal", 3, 0),
    Sketcher.Constraint("DistanceX", 1, 2, 1, 1, 4.5),
    Sketcher.Constraint("DistanceX", -1, 1, 0, 2, 96.25),
    Sketcher.Constraint("DistanceY", 0, 2, -1, 1, 28.25),
])
sketch15.setExpression("Constraints[9]", "Params.sketch15_width")
pocket7 = body.newObject("PartDesign::Pocket", "Pocket006")
pocket7.Profile = sketch15
pocket7.Type = "ThroughAll"
pocket7.Reversed = True
doc.recompute()

fillet2 = body.newObject("PartDesign::Fillet", "Fillet001")
fillet2.Base = (pocket7, edges_at(pocket7, [
    (42, 4, 4),
    (48, 4, 4),
    (42, 4, -66.5),
    (48, 4, -66.5),
    (-4, 4, -34.25),
    (-4, 4, -28.25),
    (94, 4, -34.25),
    (94, 4, -28.25),
]))
fillet2.setExpression("Radius", "Params.fillet2_radius")
doc.recompute()

fillet3 = body.newObject("PartDesign::Fillet", "Fillet002")
fillet3.Base = (fillet2, edges_at(fillet2, [
    (-8, 2, -70.5),
    (-8, 2, 8),
    (98, 2, 8),
    (98, 2, -70.5),
]))
fillet3.setExpression("Radius", "Params.fillet3_radius")

doc.recompute()
